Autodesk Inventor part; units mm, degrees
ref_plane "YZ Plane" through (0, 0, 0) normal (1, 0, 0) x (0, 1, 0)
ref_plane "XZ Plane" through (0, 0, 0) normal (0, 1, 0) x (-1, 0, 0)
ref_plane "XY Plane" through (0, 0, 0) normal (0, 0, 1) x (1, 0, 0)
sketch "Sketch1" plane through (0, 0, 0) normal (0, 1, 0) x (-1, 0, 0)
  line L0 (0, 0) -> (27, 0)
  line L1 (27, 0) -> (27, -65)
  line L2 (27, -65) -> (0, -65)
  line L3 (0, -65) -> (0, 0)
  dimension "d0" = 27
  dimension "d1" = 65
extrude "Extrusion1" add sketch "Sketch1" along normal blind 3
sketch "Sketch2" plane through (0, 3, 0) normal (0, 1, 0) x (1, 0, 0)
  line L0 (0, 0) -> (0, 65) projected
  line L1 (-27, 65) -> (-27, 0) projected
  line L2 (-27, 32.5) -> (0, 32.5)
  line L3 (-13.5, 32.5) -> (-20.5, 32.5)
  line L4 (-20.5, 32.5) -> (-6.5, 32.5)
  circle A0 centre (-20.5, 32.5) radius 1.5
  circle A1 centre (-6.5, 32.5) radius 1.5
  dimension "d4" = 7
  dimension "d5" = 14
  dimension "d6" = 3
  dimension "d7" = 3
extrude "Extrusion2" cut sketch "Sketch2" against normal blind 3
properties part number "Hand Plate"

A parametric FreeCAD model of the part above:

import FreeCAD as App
import Part
import Sketcher

V = App.Vector


def add_polygon(sketch, points):
    """Adds a closed chain of lines whose ends are joined by coincident constraints."""
    first, n = sketch.GeometryCount, len(points)
    for a, b in zip(points, points[1:] + points[:1]):
        sketch.addGeometry(Part.LineSegment(App.Vector(*a, 0), App.Vector(*b, 0)), False)
    for i in range(n):
        sketch.addConstraint(Sketcher.Constraint("Coincident", first + i, 2, first + (i + 1) % n, 1))

doc = App.newDocument("Part")
body = doc.addObject("PartDesign::Body", "Body")

sketch1 = body.newObject("Sketcher::SketchObject", "Sketch")
sketch1.AttachmentSupport = (doc.getObject("XZ_Plane"), [""])
sketch1.MapMode = "FlatFace"
add_polygon(sketch1, [(-27, 0), (0, 0), (0, -65), (-27, -65)])
sketch1.addConstraint([
    Sketcher.Constraint("Horizontal", 0),
    Sketcher.Constraint("Vertical", 1),
    Sketcher.Constraint("Horizontal", 2),
    Sketcher.Constraint("Vertical", 3),
    Sketcher.Constraint("Coincident", 0, 2, -1, 1),
    Sketcher.Constraint("DistanceX", 0, 1, 0, 2, 27.0),
    Sketcher.Constraint("DistanceY", 1, 2, 1, 1, 65.0),
])
pad1 = body.newObject("PartDesign::Pad", "Pad")
pad1.Profile = sketch1
pad1.Length = 3
pad1.Reversed = True

sketch2 = body.newObject("Sketcher::SketchObject", "Sketch001")
sketch2.AttachmentSupport = (doc.getObject("XZ_Plane"), [""])
sketch2.MapMode = "FlatFace"
sketch2.AttachmentOffset = App.Placement(V(0, 0, -3), App.Rotation())
sketch2.addGeometry([
    Part.Circle(V(-20.5, -32.5, 0), V(0, 0, 1), 1.5),
    Part.Circle(V(-6.5, -32.5, 0), V(0, 0, 1), 1.5),
], False)
sketch2.addConstraint([
    Sketcher.Constraint("Equal", 0, 1),
    Sketcher.Constraint("Horizontal", 0, 3, 1, 3),
    Sketcher.Constraint("Diameter", 0, 3.0),
    Sketcher.Constraint("DistanceX", 0, 3, 1, 3, 14.0),
    Sketcher.Constraint("DistanceX", 0, 3, -1, 1, 20.5),
    Sketcher.Constraint("DistanceY", 0, 3, -1, 1, 32.5),
])
pocket1 = body.newObject("PartDesign::Pocket", "Pocket")
pocket1.Profile = sketch2
pocket1.Length = 3
pocket1.Reversed = True

doc.recompute()
